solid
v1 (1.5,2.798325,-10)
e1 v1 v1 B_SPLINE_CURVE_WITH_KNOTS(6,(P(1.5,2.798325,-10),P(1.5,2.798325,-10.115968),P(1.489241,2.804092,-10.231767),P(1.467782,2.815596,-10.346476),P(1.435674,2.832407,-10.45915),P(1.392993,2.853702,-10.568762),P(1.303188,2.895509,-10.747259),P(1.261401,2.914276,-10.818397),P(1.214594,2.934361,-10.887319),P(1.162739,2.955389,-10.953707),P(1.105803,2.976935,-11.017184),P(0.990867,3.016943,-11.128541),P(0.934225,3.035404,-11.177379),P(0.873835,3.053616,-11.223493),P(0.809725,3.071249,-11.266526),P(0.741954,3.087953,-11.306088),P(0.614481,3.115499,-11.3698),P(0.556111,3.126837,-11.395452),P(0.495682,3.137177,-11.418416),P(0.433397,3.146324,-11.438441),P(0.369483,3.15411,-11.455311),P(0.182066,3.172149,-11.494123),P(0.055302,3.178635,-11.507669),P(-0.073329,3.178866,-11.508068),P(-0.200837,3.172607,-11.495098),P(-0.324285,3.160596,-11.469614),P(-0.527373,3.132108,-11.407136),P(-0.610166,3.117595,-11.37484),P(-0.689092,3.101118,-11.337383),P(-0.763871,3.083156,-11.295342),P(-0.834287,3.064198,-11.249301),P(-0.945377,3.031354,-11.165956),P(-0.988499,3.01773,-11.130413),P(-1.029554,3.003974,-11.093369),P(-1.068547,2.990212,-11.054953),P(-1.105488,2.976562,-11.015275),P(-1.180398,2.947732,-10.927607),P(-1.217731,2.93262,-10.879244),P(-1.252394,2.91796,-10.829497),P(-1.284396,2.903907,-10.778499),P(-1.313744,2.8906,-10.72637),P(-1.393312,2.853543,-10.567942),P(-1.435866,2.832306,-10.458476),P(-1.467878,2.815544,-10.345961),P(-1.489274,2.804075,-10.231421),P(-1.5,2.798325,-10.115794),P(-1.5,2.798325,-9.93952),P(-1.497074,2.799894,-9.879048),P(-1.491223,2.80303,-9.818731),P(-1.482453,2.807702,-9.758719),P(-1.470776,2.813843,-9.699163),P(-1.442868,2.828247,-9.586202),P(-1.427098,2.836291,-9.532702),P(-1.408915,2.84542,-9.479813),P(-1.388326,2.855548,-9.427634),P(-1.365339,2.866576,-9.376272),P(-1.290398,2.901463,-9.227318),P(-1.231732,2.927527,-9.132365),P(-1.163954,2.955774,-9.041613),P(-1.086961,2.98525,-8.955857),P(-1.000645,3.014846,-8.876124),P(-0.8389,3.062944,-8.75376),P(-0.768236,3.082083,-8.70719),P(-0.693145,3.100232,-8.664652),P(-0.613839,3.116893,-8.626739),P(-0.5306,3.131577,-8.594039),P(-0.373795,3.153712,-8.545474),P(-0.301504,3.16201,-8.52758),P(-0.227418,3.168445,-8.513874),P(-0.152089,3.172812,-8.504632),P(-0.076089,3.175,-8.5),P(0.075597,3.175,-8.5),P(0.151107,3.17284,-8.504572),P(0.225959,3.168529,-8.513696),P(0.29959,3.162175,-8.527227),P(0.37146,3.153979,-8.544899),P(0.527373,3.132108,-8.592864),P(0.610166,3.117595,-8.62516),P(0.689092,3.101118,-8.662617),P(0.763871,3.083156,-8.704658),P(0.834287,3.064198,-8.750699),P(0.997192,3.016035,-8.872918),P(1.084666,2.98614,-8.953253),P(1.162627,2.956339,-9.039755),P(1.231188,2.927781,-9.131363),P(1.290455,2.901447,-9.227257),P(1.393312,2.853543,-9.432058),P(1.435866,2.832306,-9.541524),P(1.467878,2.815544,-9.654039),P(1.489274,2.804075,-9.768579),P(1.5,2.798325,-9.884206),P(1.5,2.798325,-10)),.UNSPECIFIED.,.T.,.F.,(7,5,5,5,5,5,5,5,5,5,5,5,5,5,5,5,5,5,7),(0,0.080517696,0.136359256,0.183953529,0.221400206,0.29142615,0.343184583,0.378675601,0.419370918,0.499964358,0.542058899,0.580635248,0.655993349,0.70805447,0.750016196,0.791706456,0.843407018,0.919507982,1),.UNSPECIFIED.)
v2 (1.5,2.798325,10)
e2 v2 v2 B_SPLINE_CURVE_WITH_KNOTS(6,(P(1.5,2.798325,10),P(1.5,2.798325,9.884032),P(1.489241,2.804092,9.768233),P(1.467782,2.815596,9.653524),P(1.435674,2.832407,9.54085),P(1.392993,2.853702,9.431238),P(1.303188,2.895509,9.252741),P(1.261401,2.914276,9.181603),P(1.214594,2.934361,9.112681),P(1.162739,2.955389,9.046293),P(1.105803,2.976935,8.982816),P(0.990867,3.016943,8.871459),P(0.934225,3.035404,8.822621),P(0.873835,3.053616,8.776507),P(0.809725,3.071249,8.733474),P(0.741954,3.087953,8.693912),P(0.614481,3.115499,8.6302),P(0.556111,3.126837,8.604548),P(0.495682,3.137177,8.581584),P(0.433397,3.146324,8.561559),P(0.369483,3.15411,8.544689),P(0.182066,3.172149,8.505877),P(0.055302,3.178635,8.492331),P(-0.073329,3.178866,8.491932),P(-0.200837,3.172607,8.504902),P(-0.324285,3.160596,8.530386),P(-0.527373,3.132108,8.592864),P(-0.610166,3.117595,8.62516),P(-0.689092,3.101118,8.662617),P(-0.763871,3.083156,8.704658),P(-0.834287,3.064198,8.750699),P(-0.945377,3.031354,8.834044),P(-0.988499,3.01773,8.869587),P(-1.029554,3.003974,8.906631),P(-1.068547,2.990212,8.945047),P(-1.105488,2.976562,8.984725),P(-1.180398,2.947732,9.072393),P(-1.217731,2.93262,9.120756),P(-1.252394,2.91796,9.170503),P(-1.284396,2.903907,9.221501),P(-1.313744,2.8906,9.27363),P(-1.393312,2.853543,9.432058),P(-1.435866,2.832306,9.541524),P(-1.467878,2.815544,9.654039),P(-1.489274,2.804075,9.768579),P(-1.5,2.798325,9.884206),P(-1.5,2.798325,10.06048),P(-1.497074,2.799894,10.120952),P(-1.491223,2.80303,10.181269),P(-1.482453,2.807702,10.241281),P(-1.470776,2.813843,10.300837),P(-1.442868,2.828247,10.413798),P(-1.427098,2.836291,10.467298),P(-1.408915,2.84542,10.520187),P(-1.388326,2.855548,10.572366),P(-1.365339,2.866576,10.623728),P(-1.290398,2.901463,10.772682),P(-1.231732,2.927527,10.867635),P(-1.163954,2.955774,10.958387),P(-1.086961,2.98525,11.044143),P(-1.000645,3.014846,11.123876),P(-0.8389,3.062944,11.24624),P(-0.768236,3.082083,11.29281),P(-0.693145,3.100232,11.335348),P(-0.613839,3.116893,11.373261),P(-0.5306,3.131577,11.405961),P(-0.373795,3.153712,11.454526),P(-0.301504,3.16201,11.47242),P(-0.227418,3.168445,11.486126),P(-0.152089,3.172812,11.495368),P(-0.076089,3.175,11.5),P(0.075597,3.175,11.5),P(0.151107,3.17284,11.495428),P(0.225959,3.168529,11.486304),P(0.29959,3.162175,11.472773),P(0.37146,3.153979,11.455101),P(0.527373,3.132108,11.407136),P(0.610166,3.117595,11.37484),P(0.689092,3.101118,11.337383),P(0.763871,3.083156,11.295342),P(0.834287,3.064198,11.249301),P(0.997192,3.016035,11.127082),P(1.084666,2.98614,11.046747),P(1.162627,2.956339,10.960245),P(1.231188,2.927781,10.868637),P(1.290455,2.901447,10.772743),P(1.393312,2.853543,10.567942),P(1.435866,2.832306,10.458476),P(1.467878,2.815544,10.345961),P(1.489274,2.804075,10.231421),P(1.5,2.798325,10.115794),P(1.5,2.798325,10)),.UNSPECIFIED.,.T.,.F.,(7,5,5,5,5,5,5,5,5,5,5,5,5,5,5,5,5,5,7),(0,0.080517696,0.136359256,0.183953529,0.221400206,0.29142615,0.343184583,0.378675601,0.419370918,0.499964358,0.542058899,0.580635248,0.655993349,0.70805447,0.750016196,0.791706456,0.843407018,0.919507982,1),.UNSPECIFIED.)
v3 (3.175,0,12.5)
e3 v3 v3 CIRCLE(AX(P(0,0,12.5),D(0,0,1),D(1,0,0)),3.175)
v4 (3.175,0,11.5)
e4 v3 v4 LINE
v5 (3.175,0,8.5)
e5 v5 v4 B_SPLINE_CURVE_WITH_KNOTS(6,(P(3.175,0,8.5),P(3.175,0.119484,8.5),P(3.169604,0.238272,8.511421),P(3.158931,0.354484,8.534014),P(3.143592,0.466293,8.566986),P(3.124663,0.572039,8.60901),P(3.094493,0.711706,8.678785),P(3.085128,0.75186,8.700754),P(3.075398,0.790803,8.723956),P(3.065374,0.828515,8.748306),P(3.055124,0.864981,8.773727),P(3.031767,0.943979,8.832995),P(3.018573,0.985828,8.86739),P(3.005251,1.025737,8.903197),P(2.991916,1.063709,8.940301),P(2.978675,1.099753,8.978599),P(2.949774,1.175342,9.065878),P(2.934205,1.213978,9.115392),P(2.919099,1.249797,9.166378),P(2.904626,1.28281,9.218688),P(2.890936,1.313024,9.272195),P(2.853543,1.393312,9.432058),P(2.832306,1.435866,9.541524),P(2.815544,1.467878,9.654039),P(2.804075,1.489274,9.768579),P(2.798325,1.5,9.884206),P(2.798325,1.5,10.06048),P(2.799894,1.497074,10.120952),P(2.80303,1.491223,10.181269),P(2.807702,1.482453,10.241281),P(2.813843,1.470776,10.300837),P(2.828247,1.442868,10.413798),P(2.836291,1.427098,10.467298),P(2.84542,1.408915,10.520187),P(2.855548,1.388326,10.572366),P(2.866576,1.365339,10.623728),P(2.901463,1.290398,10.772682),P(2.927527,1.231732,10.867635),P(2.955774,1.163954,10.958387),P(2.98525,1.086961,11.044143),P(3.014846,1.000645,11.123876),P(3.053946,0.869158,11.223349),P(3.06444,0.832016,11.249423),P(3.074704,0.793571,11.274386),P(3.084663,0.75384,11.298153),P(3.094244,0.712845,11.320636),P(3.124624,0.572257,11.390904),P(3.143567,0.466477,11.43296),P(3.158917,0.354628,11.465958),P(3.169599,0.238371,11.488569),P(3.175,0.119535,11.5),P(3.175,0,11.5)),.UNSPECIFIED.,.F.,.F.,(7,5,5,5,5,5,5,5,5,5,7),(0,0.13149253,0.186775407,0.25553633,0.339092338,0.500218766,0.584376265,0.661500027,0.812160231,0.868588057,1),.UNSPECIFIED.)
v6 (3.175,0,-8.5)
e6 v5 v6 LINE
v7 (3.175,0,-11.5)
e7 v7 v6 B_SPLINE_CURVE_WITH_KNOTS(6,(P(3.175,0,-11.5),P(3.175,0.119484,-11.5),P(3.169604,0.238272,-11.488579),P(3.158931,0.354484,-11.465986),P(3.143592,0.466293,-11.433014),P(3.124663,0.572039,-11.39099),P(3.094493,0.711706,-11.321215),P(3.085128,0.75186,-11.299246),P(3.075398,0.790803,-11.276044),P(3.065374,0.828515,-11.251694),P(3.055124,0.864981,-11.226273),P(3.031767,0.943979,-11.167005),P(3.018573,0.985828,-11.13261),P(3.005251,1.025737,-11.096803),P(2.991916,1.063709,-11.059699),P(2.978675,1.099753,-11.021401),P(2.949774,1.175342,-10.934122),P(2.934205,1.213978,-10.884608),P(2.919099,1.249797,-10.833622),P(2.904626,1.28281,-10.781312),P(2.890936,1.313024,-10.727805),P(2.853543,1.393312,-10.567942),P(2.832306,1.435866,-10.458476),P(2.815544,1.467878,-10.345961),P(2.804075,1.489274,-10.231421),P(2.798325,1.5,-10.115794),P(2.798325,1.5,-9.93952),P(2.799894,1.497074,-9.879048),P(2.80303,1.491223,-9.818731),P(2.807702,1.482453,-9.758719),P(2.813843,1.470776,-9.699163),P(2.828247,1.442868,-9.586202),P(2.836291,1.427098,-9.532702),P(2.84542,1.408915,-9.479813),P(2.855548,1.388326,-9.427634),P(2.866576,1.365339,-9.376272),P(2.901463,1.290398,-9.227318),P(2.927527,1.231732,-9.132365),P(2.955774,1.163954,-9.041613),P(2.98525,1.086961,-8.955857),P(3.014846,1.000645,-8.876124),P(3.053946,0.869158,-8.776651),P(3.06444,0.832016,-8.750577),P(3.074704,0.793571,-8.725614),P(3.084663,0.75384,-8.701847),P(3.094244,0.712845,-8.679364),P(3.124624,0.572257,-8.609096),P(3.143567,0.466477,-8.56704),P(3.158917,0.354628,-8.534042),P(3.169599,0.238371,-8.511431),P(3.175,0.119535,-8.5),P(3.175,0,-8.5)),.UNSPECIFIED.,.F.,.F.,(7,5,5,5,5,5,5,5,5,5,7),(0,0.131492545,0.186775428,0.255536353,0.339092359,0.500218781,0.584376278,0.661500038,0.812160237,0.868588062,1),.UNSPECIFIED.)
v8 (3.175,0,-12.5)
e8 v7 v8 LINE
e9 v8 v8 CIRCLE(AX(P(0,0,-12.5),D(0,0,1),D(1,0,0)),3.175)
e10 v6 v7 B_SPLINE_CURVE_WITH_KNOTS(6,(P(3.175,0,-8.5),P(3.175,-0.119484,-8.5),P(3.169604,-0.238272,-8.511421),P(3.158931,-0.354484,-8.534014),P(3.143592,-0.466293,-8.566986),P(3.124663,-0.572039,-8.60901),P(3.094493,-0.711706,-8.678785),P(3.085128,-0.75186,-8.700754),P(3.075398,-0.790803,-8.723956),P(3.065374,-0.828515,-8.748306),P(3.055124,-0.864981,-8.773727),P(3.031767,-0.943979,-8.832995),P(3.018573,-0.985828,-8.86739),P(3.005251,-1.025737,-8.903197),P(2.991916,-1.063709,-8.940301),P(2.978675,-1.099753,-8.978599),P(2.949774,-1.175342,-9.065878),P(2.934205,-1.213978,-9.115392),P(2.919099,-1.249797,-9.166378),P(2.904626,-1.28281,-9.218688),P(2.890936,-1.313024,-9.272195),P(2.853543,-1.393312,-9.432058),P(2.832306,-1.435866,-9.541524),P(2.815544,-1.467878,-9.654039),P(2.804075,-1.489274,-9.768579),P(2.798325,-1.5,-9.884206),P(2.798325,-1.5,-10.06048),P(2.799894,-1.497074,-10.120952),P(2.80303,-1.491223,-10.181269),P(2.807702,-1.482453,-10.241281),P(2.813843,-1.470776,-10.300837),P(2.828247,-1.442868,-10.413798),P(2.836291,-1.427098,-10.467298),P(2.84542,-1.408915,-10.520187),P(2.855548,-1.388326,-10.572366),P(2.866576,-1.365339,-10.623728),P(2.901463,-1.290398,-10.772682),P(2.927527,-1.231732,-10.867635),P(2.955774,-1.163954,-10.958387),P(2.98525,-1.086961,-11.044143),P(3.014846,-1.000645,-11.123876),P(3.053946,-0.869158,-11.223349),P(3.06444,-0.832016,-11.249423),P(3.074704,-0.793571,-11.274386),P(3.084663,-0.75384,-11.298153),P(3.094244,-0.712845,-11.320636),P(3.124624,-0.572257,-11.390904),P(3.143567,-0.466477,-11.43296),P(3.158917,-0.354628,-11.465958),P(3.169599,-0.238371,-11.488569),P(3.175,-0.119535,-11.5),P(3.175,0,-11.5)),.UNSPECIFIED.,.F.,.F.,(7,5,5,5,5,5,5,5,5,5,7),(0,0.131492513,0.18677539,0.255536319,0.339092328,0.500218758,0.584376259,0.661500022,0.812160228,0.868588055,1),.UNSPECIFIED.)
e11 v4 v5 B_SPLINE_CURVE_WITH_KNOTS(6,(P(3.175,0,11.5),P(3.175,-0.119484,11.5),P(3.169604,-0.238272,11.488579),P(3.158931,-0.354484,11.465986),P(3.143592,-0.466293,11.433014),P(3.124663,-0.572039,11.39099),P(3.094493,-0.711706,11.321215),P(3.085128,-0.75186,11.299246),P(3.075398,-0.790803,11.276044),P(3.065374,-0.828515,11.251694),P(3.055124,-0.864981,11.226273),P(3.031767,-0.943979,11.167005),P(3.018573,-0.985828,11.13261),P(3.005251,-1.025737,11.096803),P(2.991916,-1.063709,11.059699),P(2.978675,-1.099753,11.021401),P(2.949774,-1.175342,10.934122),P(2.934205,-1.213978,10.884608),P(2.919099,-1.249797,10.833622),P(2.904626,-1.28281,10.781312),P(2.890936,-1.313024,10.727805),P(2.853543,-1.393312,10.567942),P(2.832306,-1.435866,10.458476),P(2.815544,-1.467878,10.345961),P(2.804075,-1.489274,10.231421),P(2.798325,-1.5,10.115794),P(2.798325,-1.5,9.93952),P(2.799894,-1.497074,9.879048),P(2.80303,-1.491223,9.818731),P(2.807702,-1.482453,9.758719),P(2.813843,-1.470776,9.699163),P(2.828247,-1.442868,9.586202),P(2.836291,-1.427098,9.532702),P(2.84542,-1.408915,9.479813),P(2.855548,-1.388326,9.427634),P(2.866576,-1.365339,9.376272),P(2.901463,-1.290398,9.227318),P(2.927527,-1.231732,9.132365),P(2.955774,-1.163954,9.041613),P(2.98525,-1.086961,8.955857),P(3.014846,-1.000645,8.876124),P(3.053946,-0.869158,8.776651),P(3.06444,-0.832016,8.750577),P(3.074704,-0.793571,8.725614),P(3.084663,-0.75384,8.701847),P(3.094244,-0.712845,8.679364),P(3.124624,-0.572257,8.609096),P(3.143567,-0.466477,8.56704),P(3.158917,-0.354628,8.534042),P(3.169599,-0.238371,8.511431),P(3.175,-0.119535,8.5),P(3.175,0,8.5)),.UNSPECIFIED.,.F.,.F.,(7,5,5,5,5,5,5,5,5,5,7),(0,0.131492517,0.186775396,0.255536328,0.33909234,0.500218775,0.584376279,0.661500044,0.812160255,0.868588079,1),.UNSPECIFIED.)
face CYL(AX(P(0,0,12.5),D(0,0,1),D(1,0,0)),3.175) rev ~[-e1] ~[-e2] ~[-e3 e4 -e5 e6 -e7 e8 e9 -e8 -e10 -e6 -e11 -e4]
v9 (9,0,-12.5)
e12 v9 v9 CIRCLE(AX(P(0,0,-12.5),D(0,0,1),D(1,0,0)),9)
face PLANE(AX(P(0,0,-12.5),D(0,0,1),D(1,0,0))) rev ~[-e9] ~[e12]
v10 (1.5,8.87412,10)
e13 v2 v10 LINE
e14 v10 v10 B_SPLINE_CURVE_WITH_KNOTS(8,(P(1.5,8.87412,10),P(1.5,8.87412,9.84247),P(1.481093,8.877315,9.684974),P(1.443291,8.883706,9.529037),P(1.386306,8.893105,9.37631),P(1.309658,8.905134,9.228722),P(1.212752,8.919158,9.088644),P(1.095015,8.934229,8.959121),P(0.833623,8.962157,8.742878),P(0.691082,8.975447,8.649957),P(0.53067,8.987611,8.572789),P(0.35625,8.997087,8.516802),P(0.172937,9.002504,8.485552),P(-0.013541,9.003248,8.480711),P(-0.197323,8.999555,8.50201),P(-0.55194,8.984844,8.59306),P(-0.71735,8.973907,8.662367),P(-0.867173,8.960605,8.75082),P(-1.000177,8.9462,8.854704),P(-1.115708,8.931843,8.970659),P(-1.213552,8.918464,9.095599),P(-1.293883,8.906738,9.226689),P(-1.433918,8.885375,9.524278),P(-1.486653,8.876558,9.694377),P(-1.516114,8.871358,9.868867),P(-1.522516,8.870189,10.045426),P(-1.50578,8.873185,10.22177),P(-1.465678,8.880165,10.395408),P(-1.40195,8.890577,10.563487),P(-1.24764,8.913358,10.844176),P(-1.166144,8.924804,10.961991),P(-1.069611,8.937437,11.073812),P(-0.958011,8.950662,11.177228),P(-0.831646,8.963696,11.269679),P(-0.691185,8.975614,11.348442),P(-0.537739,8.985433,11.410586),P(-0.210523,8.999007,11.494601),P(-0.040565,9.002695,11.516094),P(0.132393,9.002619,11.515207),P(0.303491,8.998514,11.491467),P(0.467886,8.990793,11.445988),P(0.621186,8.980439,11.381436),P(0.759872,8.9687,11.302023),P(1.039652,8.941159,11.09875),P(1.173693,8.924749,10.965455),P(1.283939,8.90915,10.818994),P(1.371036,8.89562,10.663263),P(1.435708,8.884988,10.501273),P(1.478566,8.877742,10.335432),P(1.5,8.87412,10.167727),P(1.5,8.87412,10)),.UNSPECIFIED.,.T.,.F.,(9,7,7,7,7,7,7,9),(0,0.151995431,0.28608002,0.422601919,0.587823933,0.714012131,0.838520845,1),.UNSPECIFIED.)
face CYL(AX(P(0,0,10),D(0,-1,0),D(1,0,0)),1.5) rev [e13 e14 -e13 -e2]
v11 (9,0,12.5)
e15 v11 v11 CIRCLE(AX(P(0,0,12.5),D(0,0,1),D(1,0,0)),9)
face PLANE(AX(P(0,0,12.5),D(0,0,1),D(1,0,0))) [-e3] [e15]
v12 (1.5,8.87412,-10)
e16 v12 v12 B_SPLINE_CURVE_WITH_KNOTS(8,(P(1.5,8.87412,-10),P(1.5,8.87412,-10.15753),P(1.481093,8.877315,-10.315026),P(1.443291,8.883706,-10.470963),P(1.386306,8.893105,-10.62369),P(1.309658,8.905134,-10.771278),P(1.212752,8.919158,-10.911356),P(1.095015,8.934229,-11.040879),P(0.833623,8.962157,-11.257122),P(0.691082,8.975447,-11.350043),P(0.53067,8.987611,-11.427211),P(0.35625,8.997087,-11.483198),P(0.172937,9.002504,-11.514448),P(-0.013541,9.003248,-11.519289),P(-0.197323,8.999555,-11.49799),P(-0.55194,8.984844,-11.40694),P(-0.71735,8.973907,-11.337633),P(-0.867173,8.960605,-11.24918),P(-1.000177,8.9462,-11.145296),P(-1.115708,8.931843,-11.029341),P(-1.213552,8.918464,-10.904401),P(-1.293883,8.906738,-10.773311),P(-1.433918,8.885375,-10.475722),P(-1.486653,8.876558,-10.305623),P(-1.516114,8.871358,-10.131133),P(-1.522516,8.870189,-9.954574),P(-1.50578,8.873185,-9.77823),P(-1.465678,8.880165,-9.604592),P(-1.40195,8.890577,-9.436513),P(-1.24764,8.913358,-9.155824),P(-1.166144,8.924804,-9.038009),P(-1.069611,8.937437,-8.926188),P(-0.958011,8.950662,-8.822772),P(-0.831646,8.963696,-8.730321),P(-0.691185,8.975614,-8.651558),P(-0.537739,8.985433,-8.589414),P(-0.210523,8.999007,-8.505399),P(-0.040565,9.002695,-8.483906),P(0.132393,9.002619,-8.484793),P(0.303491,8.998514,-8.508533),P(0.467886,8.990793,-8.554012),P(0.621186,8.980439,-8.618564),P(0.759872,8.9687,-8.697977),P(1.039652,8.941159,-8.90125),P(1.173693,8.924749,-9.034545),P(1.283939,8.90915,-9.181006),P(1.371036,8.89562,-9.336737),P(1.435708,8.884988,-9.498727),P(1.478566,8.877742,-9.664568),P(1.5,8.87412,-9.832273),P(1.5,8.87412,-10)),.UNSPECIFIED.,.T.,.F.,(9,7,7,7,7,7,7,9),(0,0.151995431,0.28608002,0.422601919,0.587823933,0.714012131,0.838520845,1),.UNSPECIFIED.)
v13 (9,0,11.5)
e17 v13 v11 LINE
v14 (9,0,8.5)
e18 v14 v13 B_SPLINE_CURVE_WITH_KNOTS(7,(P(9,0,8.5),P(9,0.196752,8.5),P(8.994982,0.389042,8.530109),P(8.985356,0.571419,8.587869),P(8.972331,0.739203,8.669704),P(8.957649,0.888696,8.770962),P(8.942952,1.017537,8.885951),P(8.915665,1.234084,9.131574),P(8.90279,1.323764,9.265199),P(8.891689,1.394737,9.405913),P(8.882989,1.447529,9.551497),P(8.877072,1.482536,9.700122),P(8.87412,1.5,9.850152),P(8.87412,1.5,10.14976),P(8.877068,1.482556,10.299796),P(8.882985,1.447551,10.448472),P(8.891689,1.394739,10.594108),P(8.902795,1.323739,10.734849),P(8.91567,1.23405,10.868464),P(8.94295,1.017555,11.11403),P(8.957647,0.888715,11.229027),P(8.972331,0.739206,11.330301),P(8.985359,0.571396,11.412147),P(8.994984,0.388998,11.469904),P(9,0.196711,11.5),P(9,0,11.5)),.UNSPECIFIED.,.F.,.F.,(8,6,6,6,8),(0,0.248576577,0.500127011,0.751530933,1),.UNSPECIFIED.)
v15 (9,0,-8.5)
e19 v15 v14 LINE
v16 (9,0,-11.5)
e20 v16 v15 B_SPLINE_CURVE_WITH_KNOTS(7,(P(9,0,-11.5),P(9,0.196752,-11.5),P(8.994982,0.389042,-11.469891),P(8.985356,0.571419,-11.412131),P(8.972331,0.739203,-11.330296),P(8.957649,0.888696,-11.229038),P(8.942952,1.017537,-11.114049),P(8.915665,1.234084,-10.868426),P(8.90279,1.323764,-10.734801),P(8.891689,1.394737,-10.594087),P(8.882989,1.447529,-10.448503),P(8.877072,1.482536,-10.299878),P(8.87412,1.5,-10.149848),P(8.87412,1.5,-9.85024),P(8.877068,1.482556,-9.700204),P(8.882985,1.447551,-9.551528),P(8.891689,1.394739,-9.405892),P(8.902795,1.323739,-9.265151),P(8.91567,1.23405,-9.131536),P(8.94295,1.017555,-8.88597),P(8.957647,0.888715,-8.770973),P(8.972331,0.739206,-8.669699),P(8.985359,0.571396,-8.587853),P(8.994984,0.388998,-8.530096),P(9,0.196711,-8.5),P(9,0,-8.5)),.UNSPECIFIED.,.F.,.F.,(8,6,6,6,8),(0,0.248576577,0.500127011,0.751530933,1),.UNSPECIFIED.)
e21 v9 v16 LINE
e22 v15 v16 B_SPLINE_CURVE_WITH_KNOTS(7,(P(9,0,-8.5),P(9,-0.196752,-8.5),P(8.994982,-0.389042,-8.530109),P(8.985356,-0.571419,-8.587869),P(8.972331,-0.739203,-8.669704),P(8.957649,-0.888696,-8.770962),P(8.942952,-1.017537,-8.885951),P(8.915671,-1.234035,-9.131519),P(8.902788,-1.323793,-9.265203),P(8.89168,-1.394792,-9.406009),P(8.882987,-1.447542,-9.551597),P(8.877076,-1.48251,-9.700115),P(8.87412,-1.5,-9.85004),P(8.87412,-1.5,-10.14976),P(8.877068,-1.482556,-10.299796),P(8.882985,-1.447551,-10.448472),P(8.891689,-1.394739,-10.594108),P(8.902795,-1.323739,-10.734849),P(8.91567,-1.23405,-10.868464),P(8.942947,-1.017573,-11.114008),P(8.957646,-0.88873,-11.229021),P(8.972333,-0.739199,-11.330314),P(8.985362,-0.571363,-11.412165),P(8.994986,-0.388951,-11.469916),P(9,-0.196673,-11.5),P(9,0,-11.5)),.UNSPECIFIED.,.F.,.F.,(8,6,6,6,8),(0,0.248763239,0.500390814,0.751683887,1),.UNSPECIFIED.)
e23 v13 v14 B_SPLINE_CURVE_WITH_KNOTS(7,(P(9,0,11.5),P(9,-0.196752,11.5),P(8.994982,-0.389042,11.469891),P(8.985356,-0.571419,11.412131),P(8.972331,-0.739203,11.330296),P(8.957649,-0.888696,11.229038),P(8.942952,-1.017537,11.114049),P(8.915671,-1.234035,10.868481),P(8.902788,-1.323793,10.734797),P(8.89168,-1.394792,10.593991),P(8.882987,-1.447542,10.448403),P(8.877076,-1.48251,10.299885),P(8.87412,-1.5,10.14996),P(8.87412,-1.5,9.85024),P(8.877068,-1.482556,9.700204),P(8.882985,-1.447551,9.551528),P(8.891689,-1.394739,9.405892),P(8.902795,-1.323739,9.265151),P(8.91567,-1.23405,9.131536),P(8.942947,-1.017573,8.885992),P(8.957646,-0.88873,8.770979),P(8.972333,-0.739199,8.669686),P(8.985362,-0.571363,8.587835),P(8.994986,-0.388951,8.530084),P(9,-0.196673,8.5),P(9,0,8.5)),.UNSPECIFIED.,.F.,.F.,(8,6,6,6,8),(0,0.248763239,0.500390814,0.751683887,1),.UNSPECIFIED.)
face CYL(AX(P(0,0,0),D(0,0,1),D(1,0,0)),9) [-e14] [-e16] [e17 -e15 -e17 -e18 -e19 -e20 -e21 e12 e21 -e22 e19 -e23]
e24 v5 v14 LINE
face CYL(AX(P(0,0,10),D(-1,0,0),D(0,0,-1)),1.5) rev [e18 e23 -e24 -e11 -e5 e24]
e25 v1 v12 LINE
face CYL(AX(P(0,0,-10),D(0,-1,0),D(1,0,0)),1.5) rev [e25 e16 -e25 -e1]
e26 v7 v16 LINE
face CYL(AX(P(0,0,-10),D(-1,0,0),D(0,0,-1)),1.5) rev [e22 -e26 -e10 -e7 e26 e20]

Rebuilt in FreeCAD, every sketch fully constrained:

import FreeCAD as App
import Part
import Sketcher

doc = App.newDocument("Part")
body = doc.addObject("PartDesign::Body", "Body")

# Sketch on XY plane
sketch1 = doc.addObject("Sketcher::SketchObject", "Sketch")
body.addObject(sketch1)
sketch1.AttachmentSupport = (doc.XY_Plane, [""])
sketch1.MapMode = "FlatFace"
sketch1.addGeometry(Part.Circle(App.Vector(0, 0, 0), App.Vector(0, 0, 1), 9), False)
sketch1.addConstraint(Sketcher.Constraint("Coincident", 0, 3, -1, 1))
sketch1.addConstraint(Sketcher.Constraint("Diameter", 0, 18.0))
pad1 = doc.addObject("PartDesign::Pad", "Pad")
body.addObject(pad1)
pad1.Profile = sketch1
pad1.Length = 25
pad1.Midplane = True

# Sketch on XY plane
sketch2 = doc.addObject("Sketcher::SketchObject", "Sketch001")
body.addObject(sketch2)
sketch2.AttachmentSupport = (doc.XY_Plane, [""])
sketch2.MapMode = "FlatFace"
sketch2.AttachmentOffset = App.Placement(App.Vector(0, 0, 12.5), App.Rotation())
sketch2.addGeometry(Part.Circle(App.Vector(0, 0, 0), App.Vector(0, 0, 1), 3.2), False)
sketch2.addConstraint(Sketcher.Constraint("Coincident", 0, 3, -1, 1))
sketch2.addConstraint(Sketcher.Constraint("Diameter", 0, 6.35))
pocket1 = doc.addObject("PartDesign::Pocket", "Pocket")
body.addObject(pocket1)
pocket1.Profile = sketch2
pocket1.Type = "ThroughAll"

# Sketch on XZ plane
sketch3 = doc.addObject("Sketcher::SketchObject", "Sketch002")
body.addObject(sketch3)
sketch3.AttachmentSupport = (doc.XZ_Plane, [""])
sketch3.MapMode = "FlatFace"
sketch3.addGeometry(Part.Circle(App.Vector(0, -10, 0), App.Vector(0, 0, 1), 1.5), False)
sketch3.addGeometry(Part.Circle(App.Vector(0, 10, 0), App.Vector(0, 0, 1), 1.5), False)
sketch3.addConstraint(Sketcher.Constraint("Equal", 0, 1))
sketch3.addConstraint(Sketcher.Constraint("Symmetric", 0, 3, 1, 3, -1, 1))
sketch3.addConstraint(Sketcher.Constraint("PointOnObject", 0, 3, -2))
sketch3.addConstraint(Sketcher.Constraint("Diameter", 0, 3.0))
sketch3.addConstraint(Sketcher.Constraint("DistanceY", 0, 3, -1, 1, 10.0))
pocket2 = doc.addObject("PartDesign::Pocket", "Pocket001")
body.addObject(pocket2)
pocket2.Profile = sketch3
pocket2.Type = "ThroughAll"

# Sketch on YZ plane
sketch4 = doc.addObject("Sketcher::SketchObject", "Sketch003")
body.addObject(sketch4)
sketch4.AttachmentSupport = (doc.YZ_Plane, [""])
sketch4.MapMode = "FlatFace"
sketch4.addGeometry(Part.Circle(App.Vector(0, 10, 0), App.Vector(0, 0, 1), 1.5), False)
sketch4.addGeometry(Part.Circle(App.Vector(0, -10, 0), App.Vector(0, 0, 1), 1.5), False)
sketch4.addConstraint(Sketcher.Constraint("Equal", 0, 1))
sketch4.addConstraint(Sketcher.Constraint("Symmetric", 0, 3, 1, 3, -1, 1))
sketch4.addConstraint(Sketcher.Constraint("PointOnObject", 0, 3, -2))
sketch4.addConstraint(Sketcher.Constraint("Diameter", 0, 3.0))
sketch4.addConstraint(Sketcher.Constraint("DistanceY", -1, 1, 0, 3, 10.0))
pocket3 = doc.addObject("PartDesign::Pocket", "Pocket002")
body.addObject(pocket3)
pocket3.Profile = sketch4
pocket3.Type = "ThroughAll"
pocket3.Reversed = True

doc.recompute()
